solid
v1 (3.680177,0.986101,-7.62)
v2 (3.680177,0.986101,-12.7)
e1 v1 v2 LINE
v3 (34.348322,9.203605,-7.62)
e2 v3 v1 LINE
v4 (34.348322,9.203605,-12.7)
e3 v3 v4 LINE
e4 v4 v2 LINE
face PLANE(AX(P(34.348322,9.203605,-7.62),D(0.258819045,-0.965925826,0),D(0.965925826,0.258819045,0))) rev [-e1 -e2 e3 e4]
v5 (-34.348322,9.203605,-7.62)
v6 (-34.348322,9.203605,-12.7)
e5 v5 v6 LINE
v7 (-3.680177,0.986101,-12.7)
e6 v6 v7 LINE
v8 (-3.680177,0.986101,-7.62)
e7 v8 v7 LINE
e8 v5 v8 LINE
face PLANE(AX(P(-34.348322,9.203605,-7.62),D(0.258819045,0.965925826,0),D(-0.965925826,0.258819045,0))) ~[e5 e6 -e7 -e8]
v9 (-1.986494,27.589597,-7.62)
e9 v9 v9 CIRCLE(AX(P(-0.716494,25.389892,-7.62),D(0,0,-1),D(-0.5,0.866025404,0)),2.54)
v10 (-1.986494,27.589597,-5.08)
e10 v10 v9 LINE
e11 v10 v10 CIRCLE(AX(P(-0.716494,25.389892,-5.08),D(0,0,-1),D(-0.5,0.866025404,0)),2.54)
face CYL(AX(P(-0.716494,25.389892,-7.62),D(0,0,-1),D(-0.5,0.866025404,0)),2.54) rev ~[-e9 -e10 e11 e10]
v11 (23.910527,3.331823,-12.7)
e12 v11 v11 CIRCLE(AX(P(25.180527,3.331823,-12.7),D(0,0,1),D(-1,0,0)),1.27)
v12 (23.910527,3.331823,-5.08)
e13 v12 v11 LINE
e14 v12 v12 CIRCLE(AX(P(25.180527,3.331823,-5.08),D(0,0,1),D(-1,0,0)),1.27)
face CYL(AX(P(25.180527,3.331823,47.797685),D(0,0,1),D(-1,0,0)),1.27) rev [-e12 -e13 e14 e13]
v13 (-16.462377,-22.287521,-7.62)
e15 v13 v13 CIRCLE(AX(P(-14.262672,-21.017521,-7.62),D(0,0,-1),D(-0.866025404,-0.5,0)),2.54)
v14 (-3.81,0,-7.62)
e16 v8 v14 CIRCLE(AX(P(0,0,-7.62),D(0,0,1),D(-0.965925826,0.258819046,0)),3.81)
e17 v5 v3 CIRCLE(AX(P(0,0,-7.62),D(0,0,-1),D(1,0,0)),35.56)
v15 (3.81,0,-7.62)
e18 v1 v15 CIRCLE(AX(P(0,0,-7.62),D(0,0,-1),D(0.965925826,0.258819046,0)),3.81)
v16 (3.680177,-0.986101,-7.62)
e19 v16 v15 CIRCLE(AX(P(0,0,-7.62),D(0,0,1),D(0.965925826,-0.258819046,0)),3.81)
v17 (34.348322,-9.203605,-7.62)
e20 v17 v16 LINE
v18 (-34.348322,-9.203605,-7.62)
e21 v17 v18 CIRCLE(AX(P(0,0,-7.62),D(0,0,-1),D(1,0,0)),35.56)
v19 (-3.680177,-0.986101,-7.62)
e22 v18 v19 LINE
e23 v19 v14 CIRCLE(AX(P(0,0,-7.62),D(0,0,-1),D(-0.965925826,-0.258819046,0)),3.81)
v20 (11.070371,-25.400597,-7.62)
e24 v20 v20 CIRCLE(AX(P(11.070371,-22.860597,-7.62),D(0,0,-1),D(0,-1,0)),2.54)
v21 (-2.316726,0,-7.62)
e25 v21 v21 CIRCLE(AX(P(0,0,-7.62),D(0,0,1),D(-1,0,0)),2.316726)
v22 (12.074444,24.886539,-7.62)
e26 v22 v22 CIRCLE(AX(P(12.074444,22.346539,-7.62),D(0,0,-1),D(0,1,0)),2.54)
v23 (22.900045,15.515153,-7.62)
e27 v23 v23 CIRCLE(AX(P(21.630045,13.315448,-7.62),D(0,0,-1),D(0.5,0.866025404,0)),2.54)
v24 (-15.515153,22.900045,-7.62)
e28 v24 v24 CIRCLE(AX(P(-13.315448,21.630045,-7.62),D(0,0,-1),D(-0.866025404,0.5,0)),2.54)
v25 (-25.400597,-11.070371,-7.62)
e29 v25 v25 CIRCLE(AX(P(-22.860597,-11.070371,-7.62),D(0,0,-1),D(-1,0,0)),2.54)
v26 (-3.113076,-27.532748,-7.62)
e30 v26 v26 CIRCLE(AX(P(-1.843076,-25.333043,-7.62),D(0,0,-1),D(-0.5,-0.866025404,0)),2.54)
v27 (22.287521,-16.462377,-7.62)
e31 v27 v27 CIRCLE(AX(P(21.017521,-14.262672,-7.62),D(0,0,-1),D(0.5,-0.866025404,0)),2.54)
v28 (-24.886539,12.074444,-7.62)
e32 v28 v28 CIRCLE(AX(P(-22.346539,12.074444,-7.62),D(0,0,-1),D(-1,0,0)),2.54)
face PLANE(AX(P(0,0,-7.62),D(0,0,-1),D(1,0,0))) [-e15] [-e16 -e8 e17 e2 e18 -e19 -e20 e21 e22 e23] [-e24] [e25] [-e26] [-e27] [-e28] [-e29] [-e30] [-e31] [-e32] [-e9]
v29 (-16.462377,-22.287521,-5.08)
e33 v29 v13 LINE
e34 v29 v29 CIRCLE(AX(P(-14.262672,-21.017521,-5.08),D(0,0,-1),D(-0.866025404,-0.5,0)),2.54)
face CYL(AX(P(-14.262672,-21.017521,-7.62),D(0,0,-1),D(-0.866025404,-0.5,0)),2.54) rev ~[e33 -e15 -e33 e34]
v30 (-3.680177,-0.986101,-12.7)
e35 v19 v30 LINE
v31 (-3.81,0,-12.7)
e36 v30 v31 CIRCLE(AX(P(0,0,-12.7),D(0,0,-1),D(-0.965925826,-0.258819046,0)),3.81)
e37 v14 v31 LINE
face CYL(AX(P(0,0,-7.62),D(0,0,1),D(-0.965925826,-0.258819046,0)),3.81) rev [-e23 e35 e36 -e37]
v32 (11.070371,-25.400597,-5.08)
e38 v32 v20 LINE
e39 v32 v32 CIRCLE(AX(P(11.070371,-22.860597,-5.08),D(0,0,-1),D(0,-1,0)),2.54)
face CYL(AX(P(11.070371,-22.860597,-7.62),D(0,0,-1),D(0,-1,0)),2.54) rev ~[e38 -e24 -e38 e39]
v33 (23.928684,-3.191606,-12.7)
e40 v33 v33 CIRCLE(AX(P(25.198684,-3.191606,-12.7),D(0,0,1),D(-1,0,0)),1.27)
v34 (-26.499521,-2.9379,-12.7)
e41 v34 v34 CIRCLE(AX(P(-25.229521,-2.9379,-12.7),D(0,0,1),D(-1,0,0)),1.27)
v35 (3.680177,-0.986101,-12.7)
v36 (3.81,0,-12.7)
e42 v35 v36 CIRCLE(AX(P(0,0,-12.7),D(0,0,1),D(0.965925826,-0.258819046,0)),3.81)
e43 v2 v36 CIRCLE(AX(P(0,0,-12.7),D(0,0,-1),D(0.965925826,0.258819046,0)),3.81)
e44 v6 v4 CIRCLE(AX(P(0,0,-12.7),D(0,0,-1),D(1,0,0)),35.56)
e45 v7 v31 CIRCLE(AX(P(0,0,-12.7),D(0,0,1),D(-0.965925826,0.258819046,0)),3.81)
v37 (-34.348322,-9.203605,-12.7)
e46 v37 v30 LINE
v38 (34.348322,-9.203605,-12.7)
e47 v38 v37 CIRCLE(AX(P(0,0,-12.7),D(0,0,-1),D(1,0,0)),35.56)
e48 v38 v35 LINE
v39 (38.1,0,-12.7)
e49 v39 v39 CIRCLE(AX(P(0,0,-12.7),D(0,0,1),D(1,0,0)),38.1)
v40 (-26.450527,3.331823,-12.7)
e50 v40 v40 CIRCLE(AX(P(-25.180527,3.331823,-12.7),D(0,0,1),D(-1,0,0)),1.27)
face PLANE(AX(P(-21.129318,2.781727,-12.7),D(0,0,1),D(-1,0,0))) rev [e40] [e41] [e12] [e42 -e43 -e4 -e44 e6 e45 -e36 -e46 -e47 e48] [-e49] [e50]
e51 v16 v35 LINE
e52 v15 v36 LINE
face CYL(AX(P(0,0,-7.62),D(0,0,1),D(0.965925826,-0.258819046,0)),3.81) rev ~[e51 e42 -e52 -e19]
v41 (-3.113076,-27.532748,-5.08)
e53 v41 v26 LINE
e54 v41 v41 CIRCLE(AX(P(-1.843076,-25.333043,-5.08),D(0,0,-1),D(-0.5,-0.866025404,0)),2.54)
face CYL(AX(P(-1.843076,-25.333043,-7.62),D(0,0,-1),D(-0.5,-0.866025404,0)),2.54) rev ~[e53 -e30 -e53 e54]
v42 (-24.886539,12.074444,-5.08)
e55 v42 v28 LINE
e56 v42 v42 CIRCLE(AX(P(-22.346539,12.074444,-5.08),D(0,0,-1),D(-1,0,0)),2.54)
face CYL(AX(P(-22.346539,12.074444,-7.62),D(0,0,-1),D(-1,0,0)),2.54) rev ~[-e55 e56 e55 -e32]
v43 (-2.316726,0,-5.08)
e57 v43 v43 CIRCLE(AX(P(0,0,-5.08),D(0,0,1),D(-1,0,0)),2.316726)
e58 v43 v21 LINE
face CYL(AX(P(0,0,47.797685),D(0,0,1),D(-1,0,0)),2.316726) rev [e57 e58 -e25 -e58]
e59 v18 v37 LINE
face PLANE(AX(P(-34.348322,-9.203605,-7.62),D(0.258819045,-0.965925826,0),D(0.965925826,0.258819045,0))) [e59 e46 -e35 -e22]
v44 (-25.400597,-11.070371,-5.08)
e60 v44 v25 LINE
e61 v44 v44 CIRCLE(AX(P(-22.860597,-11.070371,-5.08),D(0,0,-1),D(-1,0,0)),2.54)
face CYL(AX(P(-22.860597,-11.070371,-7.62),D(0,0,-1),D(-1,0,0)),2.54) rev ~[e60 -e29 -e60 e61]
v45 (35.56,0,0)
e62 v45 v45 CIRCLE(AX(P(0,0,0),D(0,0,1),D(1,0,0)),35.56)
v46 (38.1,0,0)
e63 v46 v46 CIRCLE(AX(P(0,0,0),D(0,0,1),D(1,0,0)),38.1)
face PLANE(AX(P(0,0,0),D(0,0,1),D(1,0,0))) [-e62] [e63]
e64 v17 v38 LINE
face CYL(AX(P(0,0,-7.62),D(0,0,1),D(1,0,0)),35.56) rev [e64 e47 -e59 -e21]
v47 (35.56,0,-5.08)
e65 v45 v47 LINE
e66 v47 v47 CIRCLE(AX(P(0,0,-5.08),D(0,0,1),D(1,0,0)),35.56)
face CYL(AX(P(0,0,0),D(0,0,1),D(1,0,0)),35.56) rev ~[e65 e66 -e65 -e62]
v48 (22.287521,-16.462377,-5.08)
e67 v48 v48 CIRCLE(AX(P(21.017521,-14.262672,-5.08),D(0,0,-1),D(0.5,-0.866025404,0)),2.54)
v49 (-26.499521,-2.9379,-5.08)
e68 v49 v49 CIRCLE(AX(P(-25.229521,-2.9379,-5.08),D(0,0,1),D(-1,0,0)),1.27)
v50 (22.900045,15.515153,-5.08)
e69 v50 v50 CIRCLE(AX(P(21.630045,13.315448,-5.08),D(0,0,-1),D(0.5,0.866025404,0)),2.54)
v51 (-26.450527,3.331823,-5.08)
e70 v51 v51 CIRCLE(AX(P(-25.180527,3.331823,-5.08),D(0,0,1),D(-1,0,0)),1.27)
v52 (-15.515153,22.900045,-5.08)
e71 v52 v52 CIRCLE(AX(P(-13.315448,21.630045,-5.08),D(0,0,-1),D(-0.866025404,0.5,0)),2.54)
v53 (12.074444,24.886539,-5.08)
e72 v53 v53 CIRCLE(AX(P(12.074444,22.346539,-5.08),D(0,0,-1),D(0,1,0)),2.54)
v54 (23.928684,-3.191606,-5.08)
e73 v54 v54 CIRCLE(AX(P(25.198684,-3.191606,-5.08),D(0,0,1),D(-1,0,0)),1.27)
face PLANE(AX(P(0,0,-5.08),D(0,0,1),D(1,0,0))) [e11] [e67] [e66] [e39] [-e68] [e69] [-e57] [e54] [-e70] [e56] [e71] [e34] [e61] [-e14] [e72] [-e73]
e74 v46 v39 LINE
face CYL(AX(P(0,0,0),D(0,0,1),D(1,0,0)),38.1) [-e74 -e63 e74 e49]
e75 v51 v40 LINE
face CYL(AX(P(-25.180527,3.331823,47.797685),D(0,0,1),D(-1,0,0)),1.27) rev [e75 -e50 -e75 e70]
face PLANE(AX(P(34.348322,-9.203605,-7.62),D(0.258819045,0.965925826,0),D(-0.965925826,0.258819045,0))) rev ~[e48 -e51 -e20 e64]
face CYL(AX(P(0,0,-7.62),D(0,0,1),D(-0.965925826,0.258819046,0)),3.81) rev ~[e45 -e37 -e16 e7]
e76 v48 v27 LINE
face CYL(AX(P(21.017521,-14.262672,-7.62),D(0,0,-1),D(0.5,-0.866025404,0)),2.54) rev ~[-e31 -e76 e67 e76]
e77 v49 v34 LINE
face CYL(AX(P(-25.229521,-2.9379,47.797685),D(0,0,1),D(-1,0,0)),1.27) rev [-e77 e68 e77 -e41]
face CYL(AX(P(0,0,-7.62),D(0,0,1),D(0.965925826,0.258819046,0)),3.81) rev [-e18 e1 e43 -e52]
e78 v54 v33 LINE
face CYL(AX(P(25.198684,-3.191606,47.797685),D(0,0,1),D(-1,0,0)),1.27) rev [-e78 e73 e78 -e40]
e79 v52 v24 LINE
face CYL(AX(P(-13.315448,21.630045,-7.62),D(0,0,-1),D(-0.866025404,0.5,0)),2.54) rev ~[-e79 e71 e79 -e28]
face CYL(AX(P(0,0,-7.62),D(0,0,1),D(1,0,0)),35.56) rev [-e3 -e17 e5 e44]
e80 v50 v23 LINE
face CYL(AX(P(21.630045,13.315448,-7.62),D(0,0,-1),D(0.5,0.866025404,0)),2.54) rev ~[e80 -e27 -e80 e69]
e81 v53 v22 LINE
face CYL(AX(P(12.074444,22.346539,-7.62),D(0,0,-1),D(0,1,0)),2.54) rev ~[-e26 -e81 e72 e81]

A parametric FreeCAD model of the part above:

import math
import FreeCAD as App
import Part
import Sketcher
from FreeCAD import Vector
Q = App.Units.Quantity

doc = App.newDocument("Part")
body = doc.addObject("PartDesign::Body", "Body")

sketch1 = body.newObject("Sketcher::SketchObject", "Sketch")
sketch1.AttachmentSupport = (doc.getObject("XY_Plane"), [""])
sketch1.MapMode = "FlatFace"
sketch1.addGeometry(Part.Circle(Vector(0, 0, 0), Vector(0, 0, 1), 38), False)
sketch1.addConstraint([
    Sketcher.Constraint("Coincident", 0, 3, -1, 1),
    Sketcher.Constraint("Diameter", 0, Q("3 in")),
])
pad1 = body.newObject("PartDesign::Pad", "Pad")
pad1.Profile = sketch1
pad1.Length = Q("0.5 in")
pad1.Reversed = True

sketch2 = body.newObject("Sketcher::SketchObject", "Sketch001")
sketch2.AttachmentSupport = (doc.getObject("XY_Plane"), [""])
sketch2.MapMode = "FlatFace"
sketch2.addGeometry(Part.Circle(Vector(0, 0, 0), Vector(0, 0, 1), 36), False)
sketch2.addConstraint([
    Sketcher.Constraint("Coincident", 0, 3, -1, 1),
    Sketcher.Constraint("Diameter", 0, Q("2.8 in")),
])
pocket1 = body.newObject("PartDesign::Pocket", "Pocket")
pocket1.Profile = sketch2
pocket1.Length = Q("0.2 in")

sketch3 = body.newObject("Sketcher::SketchObject", "Sketch002")
sketch3.AttachmentSupport = (doc.getObject("XY_Plane"), [""])
sketch3.MapMode = "FlatFace"
sketch3.AttachmentOffset = App.Placement(Vector(0, 0, -0.3 * 25.4), App.Rotation())
sketch3.addGeometry(Part.Circle(Vector(0, 0, 0), Vector(0, 0, 1), 36), False)
sketch3.addConstraint([
    Sketcher.Constraint("Coincident", 0, 3, -1, 1),
    Sketcher.Constraint("Diameter", 0, Q("2.8 in")),
])
pocket2 = body.newObject("PartDesign::Pocket", "Pocket001")
pocket2.Profile = sketch3
pocket2.Length = Q("0.2 in")

sketch4 = body.newObject("Sketcher::SketchObject", "Sketch003")
sketch4.AttachmentSupport = (doc.getObject("XY_Plane"), [""])
sketch4.MapMode = "FlatFace"
sketch4.AttachmentOffset = App.Placement(Vector(0, 0, -0.3 * 25.4), App.Rotation())
sketch4.addGeometry([
    Part.LineSegment(Vector(3.8, 0, 0), Vector(35.6, 0, 0)),
    Part.ArcOfCircle(Part.Circle(Vector(0, 0, 0), Vector(0, 0, 1), 35.6), math.radians(-15), math.radians(0)),
    Part.LineSegment(Vector(34.3, -9.2, 0), Vector(3.7, -1, 0)),
    Part.ArcOfCircle(Part.Circle(Vector(0, 0, 0), Vector(0, 0, 1), 3.8), math.radians(-15), math.radians(0)),
], False)
sketch4.addConstraint([
    Sketcher.Constraint("Coincident", 0, 2, 1, 2),
    Sketcher.Constraint("Coincident", 1, 1, 2, 1),
    Sketcher.Constraint("Coincident", 2, 2, 3, 1),
    Sketcher.Constraint("Coincident", 3, 2, 0, 1),
    Sketcher.Constraint("Horizontal", 0),
    Sketcher.Constraint("Coincident", 1, 3, -1, 1),
    Sketcher.Constraint("Coincident", 3, 3, -1, 1),
    Sketcher.Constraint("PointOnObject", 0, 2, -1),
    Sketcher.Constraint("Radius", 1, Q("1.4 in")),
    Sketcher.Constraint("Radius", 3, Q("0.15 in")),
    Sketcher.Constraint("Angle", 2, Q("165 deg")),
    Sketcher.Constraint("DistanceY", 2, 2, -1, 1, 0.986101),
])
pad2 = body.newObject("PartDesign::Pad", "Pad001")
pad2.Profile = sketch4
pad2.Length = Q("0.2 in")
pad2.Reversed = True
doc.recompute()

mirrored = body.newObject("PartDesign::Mirrored", "Mirrored")
mirrored.Originals = [pad2]
mirrored.MirrorPlane = (doc.getObject("XZ_Plane"), [""])
body.Tip = mirrored

sketch5 = body.newObject("Sketcher::SketchObject", "Sketch004")
sketch5.AttachmentSupport = (doc.getObject("XY_Plane"), [""])
sketch5.MapMode = "FlatFace"
sketch5.AttachmentOffset = App.Placement(Vector(0, 0, -0.3 * 25.4), App.Rotation())
sketch5.addGeometry([
    Part.LineSegment(Vector(-35.6, 0, 0), Vector(-3.8, 0, 0)),
    Part.ArcOfCircle(Part.Circle(Vector(0, 0, 0), Vector(0, 0, 1), 3.8), math.radians(180), math.radians(195)),
    Part.LineSegment(Vector(-3.7, -1, 0), Vector(-34.3, -9.2, 0)),
    Part.ArcOfCircle(Part.Circle(Vector(0, 0, 0), Vector(0, 0, 1), 35.6), math.radians(-180), math.radians(-165)),
], False)
sketch5.addConstraint([
    Sketcher.Constraint("Coincident", 0, 2, 1, 1),
    Sketcher.Constraint("Coincident", 1, 2, 2, 1),
    Sketcher.Constraint("Coincident", 2, 2, 3, 2),
    Sketcher.Constraint("Coincident", 3, 1, 0, 1),
    Sketcher.Constraint("Horizontal", 0),
    Sketcher.Constraint("Coincident", 1, 3, -1, 1),
    Sketcher.Constraint("Coincident", 3, 3, -1, 1),
    Sketcher.Constraint("PointOnObject", 0, 2, -1),
    Sketcher.Constraint("Radius", 3, Q("1.4 in")),
    Sketcher.Constraint("Radius", 1, Q("0.15 in")),
    Sketcher.Constraint("Angle", 2, Q("-165 deg")),
    Sketcher.Constraint("DistanceY", 1, 2, -1, 1, 0.986101),
])
pad3 = body.newObject("PartDesign::Pad", "Pad002")
pad3.Profile = sketch5
pad3.Length = Q("0.2 in")
pad3.Reversed = True
doc.recompute()

mirrored2 = body.newObject("PartDesign::Mirrored", "Mirrored001")
mirrored2.Originals = [pad3]
mirrored2.MirrorPlane = (doc.getObject("XZ_Plane"), [""])
body.Tip = mirrored2

sketch6 = body.newObject("Sketcher::SketchObject", "Sketch005")
sketch6.AttachmentSupport = (doc.getObject("XY_Plane"), [""])
sketch6.MapMode = "FlatFace"
sketch6.AttachmentOffset = App.Placement(Vector(0, 0, -0.3 * 25.4), App.Rotation())
sketch6.addGeometry(Part.Circle(Vector(-22.3, 12.1, 0), Vector(0, 0, 1), 2.5), False)
sketch6.addConstraint([
    Sketcher.Constraint("Diameter", 0, Q("0.2 in")),
    Sketcher.Constraint("DistanceX", 0, 3, -1, 1, 22.346539),
    Sketcher.Constraint("DistanceY", -1, 1, 0, 3, 12.074444),
])
pocket3 = body.newObject("PartDesign::Pocket", "Pocket002")
pocket3.Profile = sketch6
pocket3.Length = 110.835369
pocket3.Midplane = True
doc.recompute()

polarpattern = body.newObject("PartDesign::PolarPattern", "PolarPattern")
polarpattern.Originals = [pocket3]
polarpattern.Axis = (doc.getObject("Z_Axis"), [""])
polarpattern.Angle = 120
polarpattern.Occurrences = 5
polarpattern.Reversed = True
body.Tip = polarpattern

sketch7 = body.newObject("Sketcher::SketchObject", "Sketch006")
sketch7.AttachmentSupport = (doc.getObject("XY_Plane"), [""])
sketch7.MapMode = "FlatFace"
sketch7.AttachmentOffset = App.Placement(Vector(0, 0, -0.3 * 25.4), App.Rotation())
sketch7.addGeometry(Part.Circle(Vector(-22.9, -11.1, 0), Vector(0, 0, 1), 2.5), False)
sketch7.addConstraint([
    Sketcher.Constraint("Diameter", 0, Q("0.2 in")),
    Sketcher.Constraint("DistanceY", 0, 3, -1, 1, 11.070371),
    Sketcher.Constraint("DistanceX", 0, 3, -1, 1, 22.860597),
])
pocket4 = body.newObject("PartDesign::Pocket", "Pocket003")
pocket4.Profile = sketch7
pocket4.Length = 110.835369
pocket4.Midplane = True
doc.recompute()

polarpattern2 = body.newObject("PartDesign::PolarPattern", "PolarPattern001")
polarpattern2.Originals = [pocket4]
polarpattern2.Axis = (doc.getObject("Z_Axis"), [""])
polarpattern2.Angle = 120
polarpattern2.Occurrences = 5
body.Tip = polarpattern2

sketch8 = body.newObject("Sketcher::SketchObject", "Sketch007")
sketch8.AttachmentSupport = (doc.getObject("XY_Plane"), [""])
sketch8.MapMode = "FlatFace"
sketch8.AttachmentOffset = App.Placement(Vector(0, 0, -0.3 * 25.4), App.Rotation())
sketch8.addGeometry([
    Part.Circle(Vector(25.2, 3.3, 0), Vector(0, 0, 1), 1.3),
    Part.Circle(Vector(25.2, -3.2, 0), Vector(0, 0, 1), 1.3),
    Part.Circle(Vector(-25.2, 3.3, 0), Vector(0, 0, 1), 1.3),
    Part.Circle(Vector(-25.2, -2.9, 0), Vector(0, 0, 1), 1.3),
], False)
sketch8.addConstraint([
    Sketcher.Constraint("Equal", 0, 1),
    Sketcher.Constraint("Equal", 1, 2),
    Sketcher.Constraint("Equal", 2, 3),
    Sketcher.Constraint("Symmetric", 0, 3, 2, 3, -2),
    Sketcher.Constraint("Diameter", 0, Q("0.1 in")),
    Sketcher.Constraint("DistanceY", 3, 3, -1, 1, 2.9379),
    Sketcher.Constraint("DistanceX", 3, 3, -1, 1, 25.229521),
    Sketcher.Constraint("DistanceY", 1, 3, 0, 3, 6.523429),
    Sketcher.Constraint("DistanceX", 2, 3, 1, 3, 50.379211),
    Sketcher.Constraint("DistanceX", 3, 3, 0, 3, 50.410049),
    Sketcher.Constraint("DistanceY", -1, 1, 0, 3, 3.331823),
])
pocket5 = body.newObject("PartDesign::Pocket", "Pocket004")
pocket5.Profile = sketch8
pocket5.Type = "ThroughAll"
pocket5.Midplane = True

sketch9 = body.newObject("Sketcher::SketchObject", "Sketch008")
sketch9.AttachmentSupport = (doc.getObject("XY_Plane"), [""])
sketch9.MapMode = "FlatFace"
sketch9.AttachmentOffset = App.Placement(Vector(0, 0, -0.3 * 25.4), App.Rotation())
sketch9.addGeometry(Part.Circle(Vector(0, 0, 0), Vector(0, 0, 1), 2.3), False)
sketch9.addConstraint([
    Sketcher.Constraint("Coincident", 0, 3, -1, 1),
    Sketcher.Constraint("Diameter", 0, 4.633451),
])
pocket6 = body.newObject("PartDesign::Pocket", "Pocket005")
pocket6.Profile = sketch9
pocket6.Type = "ThroughAll"
pocket6.Midplane = True

doc.recompute()
